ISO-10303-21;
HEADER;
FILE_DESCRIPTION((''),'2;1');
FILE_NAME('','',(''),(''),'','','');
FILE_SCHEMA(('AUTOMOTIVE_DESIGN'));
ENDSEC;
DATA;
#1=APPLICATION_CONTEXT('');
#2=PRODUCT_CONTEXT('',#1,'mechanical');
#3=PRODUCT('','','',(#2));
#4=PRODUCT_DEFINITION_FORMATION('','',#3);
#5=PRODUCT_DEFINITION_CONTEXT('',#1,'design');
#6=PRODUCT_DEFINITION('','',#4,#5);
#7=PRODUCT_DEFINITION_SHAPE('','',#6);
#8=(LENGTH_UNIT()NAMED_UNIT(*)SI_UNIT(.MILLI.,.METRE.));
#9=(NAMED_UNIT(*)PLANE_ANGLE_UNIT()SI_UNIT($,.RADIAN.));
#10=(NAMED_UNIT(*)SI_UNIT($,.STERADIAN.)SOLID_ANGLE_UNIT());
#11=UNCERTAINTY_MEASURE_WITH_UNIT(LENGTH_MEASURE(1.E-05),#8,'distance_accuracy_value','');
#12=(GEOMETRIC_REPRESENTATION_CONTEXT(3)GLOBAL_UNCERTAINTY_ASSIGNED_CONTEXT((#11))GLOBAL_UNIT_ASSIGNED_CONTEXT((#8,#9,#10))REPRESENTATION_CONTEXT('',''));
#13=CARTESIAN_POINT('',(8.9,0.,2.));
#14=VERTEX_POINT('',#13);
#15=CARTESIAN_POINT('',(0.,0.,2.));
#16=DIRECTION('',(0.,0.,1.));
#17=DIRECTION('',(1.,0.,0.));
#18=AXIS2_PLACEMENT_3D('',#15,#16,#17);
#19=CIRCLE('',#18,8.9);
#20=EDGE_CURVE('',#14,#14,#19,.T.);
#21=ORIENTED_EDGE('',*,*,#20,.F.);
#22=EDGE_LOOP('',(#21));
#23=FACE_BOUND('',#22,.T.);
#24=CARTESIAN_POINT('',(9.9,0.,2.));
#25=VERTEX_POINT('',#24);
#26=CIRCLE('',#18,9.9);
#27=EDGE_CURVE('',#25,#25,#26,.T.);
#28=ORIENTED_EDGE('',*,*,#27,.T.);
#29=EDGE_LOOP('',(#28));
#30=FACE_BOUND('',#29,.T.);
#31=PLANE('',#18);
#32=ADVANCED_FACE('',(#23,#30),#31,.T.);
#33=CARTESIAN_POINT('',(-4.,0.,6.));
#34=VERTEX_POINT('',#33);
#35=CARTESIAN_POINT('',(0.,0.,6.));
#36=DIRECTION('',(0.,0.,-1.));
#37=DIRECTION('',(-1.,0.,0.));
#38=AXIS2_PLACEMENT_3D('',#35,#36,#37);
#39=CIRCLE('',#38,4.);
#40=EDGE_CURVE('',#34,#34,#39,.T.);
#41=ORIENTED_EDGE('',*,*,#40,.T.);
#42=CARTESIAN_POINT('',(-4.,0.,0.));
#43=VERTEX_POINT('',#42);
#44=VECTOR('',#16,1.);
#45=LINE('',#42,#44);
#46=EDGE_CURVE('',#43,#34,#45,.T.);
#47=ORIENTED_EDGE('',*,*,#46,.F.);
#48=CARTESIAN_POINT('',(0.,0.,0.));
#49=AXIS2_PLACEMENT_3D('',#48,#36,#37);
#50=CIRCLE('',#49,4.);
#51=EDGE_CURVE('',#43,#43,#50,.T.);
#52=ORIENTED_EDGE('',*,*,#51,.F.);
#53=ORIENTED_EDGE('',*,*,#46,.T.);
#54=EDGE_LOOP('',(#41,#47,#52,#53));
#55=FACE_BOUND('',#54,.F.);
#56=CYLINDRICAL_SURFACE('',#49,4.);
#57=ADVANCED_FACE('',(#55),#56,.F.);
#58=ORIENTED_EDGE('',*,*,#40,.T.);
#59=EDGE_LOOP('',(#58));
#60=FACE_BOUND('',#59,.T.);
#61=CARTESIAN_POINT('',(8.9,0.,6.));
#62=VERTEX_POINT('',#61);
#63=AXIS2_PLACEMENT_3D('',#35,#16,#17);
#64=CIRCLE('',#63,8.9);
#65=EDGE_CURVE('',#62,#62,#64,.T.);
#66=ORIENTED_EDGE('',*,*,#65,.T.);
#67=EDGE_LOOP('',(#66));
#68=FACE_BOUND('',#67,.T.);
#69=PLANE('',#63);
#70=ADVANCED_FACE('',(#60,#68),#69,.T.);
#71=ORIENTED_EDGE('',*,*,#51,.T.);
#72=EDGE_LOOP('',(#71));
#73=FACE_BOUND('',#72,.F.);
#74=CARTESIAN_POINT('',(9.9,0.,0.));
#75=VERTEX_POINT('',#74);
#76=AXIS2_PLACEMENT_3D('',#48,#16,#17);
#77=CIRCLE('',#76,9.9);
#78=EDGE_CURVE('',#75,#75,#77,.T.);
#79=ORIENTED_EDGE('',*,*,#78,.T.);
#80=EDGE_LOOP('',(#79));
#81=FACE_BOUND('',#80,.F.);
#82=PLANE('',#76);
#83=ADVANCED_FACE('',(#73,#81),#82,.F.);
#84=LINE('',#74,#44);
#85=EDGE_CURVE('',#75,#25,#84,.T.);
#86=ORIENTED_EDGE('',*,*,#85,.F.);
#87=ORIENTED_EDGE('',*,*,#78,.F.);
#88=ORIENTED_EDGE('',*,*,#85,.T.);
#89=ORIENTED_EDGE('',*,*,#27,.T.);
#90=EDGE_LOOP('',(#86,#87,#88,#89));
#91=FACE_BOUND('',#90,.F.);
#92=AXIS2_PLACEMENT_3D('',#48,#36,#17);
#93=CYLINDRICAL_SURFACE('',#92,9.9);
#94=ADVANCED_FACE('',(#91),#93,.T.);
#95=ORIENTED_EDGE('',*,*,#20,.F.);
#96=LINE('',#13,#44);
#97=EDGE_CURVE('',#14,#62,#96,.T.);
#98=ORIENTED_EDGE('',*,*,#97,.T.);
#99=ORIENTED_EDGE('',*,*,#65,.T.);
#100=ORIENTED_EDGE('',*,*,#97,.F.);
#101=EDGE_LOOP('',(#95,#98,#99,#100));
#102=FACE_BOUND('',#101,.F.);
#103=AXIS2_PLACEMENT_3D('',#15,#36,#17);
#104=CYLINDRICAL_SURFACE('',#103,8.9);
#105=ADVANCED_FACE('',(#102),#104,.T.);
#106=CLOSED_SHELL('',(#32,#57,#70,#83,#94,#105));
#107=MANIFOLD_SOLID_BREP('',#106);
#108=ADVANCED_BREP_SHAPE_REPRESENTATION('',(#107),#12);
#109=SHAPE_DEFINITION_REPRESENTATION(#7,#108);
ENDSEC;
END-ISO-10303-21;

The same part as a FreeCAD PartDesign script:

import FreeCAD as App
import Part
import Sketcher
Q = App.Units.Quantity

doc = App.newDocument("Part")
body = doc.addObject("PartDesign::Body", "Body")

# Sketch on XY plane
sketch1 = body.newObject("Sketcher::SketchObject", "Sketch")
sketch1.AttachmentSupport = (doc.getObject("XY_Plane"), [""])
sketch1.MapMode = "FlatFace"
sketch1.addGeometry(Part.Circle(App.Vector(0, 0, 0), App.Vector(0, 0, 1), 10), False)
sketch1.addConstraint([
    Sketcher.Constraint("Coincident", 0, 3, -1, 1),
    Sketcher.Constraint("Diameter", 0, Q("19.8 mm")),
])
pad1 = body.newObject("PartDesign::Pad", "Pad")
pad1.Profile = sketch1
pad1.Length = 2

# Sketch on XY plane
sketch2 = body.newObject("Sketcher::SketchObject", "Sketch001")
sketch2.AttachmentSupport = (doc.getObject("XY_Plane"), [""])
sketch2.MapMode = "FlatFace"
sketch2.AttachmentOffset = App.Placement(App.Vector(0, 0, 2), App.Rotation())
sketch2.addGeometry(Part.Circle(App.Vector(0, 0, 0), App.Vector(0, 0, 1), 9), False)
sketch2.addConstraint([
    Sketcher.Constraint("Coincident", 0, 3, -1, 1),
    Sketcher.Constraint("Diameter", 0, Q("17.8 mm")),
])
pad2 = body.newObject("PartDesign::Pad", "Pad001")
pad2.Profile = sketch2
pad2.Length = 4

# Sketch on XY plane
sketch3 = body.newObject("Sketcher::SketchObject", "Sketch002")
sketch3.AttachmentSupport = (doc.getObject("XY_Plane"), [""])
sketch3.MapMode = "FlatFace"
sketch3.addGeometry(Part.Circle(App.Vector(0, 0, 0), App.Vector(0, 0, 1), 4), False)
sketch3.addConstraint([
    Sketcher.Constraint("Coincident", 0, 3, -1, 1),
    Sketcher.Constraint("Diameter", 0, Q("8 mm")),
])
pocket1 = body.newObject("PartDesign::Pocket", "Pocket")
pocket1.Profile = sketch3
pocket1.Length = 10
pocket1.Reversed = True

doc.recompute()
